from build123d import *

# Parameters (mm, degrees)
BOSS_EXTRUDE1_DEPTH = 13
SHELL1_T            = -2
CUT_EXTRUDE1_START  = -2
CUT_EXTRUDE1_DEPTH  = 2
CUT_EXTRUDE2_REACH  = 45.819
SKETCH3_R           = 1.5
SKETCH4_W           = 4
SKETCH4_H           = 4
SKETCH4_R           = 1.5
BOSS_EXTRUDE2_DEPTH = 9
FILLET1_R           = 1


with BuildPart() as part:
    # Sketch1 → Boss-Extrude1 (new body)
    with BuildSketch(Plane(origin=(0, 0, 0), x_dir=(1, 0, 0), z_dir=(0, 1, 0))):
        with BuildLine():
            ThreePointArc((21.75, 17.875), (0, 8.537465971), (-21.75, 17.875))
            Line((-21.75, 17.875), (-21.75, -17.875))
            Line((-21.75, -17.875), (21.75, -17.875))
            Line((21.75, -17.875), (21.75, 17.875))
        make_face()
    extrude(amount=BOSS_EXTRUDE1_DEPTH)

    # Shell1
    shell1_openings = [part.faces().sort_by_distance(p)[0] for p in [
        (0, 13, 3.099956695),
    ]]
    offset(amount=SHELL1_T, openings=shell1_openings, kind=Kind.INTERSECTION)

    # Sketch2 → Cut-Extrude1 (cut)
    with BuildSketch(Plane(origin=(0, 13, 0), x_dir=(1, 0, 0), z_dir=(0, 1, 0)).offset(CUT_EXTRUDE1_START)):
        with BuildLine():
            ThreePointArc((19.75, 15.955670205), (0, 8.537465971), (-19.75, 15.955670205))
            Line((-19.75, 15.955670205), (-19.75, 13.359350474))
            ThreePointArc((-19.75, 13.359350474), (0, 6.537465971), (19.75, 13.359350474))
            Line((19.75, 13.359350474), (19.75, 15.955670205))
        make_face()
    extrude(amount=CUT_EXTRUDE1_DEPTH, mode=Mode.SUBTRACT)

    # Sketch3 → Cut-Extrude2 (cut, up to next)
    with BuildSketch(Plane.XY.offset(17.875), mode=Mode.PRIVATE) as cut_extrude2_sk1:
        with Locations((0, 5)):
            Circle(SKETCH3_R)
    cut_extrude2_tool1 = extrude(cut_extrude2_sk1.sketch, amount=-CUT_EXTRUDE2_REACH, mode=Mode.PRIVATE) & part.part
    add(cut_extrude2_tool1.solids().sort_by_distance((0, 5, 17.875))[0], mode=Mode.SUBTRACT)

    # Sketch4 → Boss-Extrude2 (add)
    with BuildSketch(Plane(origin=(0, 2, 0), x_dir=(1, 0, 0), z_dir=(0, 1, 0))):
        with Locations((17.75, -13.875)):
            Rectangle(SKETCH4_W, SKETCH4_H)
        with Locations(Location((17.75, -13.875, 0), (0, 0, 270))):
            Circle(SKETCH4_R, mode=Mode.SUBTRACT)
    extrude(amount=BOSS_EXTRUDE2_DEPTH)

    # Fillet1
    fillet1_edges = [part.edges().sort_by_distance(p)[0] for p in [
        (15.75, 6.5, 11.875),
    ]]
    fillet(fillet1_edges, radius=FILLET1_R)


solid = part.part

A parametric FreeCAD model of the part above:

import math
import FreeCAD as App
import Part
import Sketcher


def edges_at(feature, points):
    """Names of the edges that pass closest to the given points."""
    edges = feature.Shape.Edges
    near = lambda p: min(range(len(edges)), key=lambda i: edges[i].distToShape(Part.Vertex(*p))[0])
    return sorted({f"Edge{near(p) + 1}" for p in points})


def faces_at(feature, points):
    """Names of the faces that lie closest to the given points."""
    faces = feature.Shape.Faces
    near = lambda p: min(range(len(faces)), key=lambda i: faces[i].distToShape(Part.Vertex(*p))[0])
    return sorted({f"Face{near(p) + 1}" for p in points})


def add_polygon(sketch, points):
    """Adds a closed chain of lines whose ends are joined by coincident constraints."""
    first, n = sketch.GeometryCount, len(points)
    for a, b in zip(points, points[1:] + points[:1]):
        sketch.addGeometry(Part.LineSegment(App.Vector(*a, 0), App.Vector(*b, 0)), False)
    for i in range(n):
        sketch.addConstraint(Sketcher.Constraint("Coincident", first + i, 2, first + (i + 1) % n, 1))

doc = App.newDocument("Part")
body = doc.addObject("PartDesign::Body", "Body")

# Sketch on XZ plane
sketch1 = body.newObject("Sketcher::SketchObject", "Sketch")
sketch1.AttachmentSupport = (doc.getObject("XZ_Plane"), [""])
sketch1.MapMode = "FlatFace"
sketch1.addGeometry(Part.ArcOfCircle(Part.Circle(App.Vector(0, -38.537466, 0), App.Vector(0, 0, 1), 30), math.radians(43.531152), math.radians(136.468848)), False)
sketch1.addGeometry(Part.LineSegment(App.Vector(-21.75, -17.875, 0), App.Vector(-21.75, 17.875, 0)), False)
sketch1.addGeometry(Part.LineSegment(App.Vector(-21.75, 17.875, 0), App.Vector(21.75, 17.875, 0)), False)
sketch1.addGeometry(Part.LineSegment(App.Vector(21.75, 17.875, 0), App.Vector(21.75, -17.875, 0)), False)
sketch1.addConstraint(Sketcher.Constraint("Coincident", 0, 2, 1, 1))
sketch1.addConstraint(Sketcher.Constraint("Coincident", 1, 2, 2, 1))
sketch1.addConstraint(Sketcher.Constraint("Coincident", 2, 2, 3, 1))
sketch1.addConstraint(Sketcher.Constraint("Coincident", 3, 2, 0, 1))
sketch1.addConstraint(Sketcher.Constraint("Vertical", 1))
sketch1.addConstraint(Sketcher.Constraint("Horizontal", 2))
sketch1.addConstraint(Sketcher.Constraint("Vertical", 3))
sketch1.addConstraint(Sketcher.Constraint("Symmetric", 0, 2, 2, 2, -1, 1))
sketch1.addConstraint(Sketcher.Constraint("PointOnObject", 0, 3, -2))
sketch1.addConstraint(Sketcher.Constraint("Radius", 0, 30.0))
sketch1.addConstraint(Sketcher.Constraint("DistanceX", 2, 1, 2, 2, 43.5))
sketch1.addConstraint(Sketcher.Constraint("DistanceY", 1, 1, 1, 2, 35.75))
pad1 = body.newObject("PartDesign::Pad", "Pad")
pad1.Profile = sketch1
pad1.Length = 13
pad1.Reversed = True
doc.recompute()

thickness = body.newObject("PartDesign::Thickness", "Thickness")
thickness.Base = (pad1, faces_at(pad1, [(0, 13, 0)]))
thickness.Value = 2
thickness.Reversed = True
thickness.Join = "Intersection"

# Sketch on XZ plane
sketch2 = body.newObject("Sketcher::SketchObject", "Sketch001")
sketch2.AttachmentSupport = (doc.getObject("XZ_Plane"), [""])
sketch2.MapMode = "FlatFace"
sketch2.AttachmentOffset = App.Placement(App.Vector(0, 0, -11), App.Rotation())
sketch2.addGeometry(Part.ArcOfCircle(Part.Circle(App.Vector(0, -38.537466, 0), App.Vector(0, 0, 1), 30), math.radians(48.827113), math.radians(131.172887)), False)
sketch2.addGeometry(Part.LineSegment(App.Vector(-19.75, -15.95567, 0), App.Vector(-19.75, -13.35935, 0)), False)
sketch2.addGeometry(Part.ArcOfCircle(Part.Circle(App.Vector(0, -38.537466, 0), App.Vector(0, 0, 1), 32), math.radians(51.88896), math.radians(128.11104)), False)
sketch2.addGeometry(Part.LineSegment(App.Vector(19.75, -13.35935, 0), App.Vector(19.75, -15.95567, 0)), False)
sketch2.addConstraint(Sketcher.Constraint("Coincident", 0, 2, 1, 1))
sketch2.addConstraint(Sketcher.Constraint("Coincident", 1, 2, 2, 2))
sketch2.addConstraint(Sketcher.Constraint("Coincident", 2, 1, 3, 1))
sketch2.addConstraint(Sketcher.Constraint("Coincident", 3, 2, 0, 1))
sketch2.addConstraint(Sketcher.Constraint("Vertical", 1))
sketch2.addConstraint(Sketcher.Constraint("Vertical", 3))
sketch2.addConstraint(Sketcher.Constraint("Coincident", 2, 3, 0, 3))
sketch2.addConstraint(Sketcher.Constraint("Symmetric", 1, 2, 2, 1, -2))
sketch2.addConstraint(Sketcher.Constraint("Radius", 0, 30.0))
sketch2.addConstraint(Sketcher.Constraint("Radius", 2, 32.0))
sketch2.addConstraint(Sketcher.Constraint("DistanceX", 1, 2, 2, 1, 39.5))
sketch2.addConstraint(Sketcher.Constraint("DistanceY", 0, 2, -1, 1, 15.95567))
pocket1 = body.newObject("PartDesign::Pocket", "Pocket")
pocket1.Profile = sketch2
pocket1.Length = 2

# Sketch on XY plane
sketch3 = body.newObject("Sketcher::SketchObject", "Sketch002")
sketch3.AttachmentSupport = (doc.getObject("XY_Plane"), [""])
sketch3.MapMode = "FlatFace"
sketch3.AttachmentOffset = App.Placement(App.Vector(0, 0, 17.875), App.Rotation())
sketch3.addGeometry(Part.Circle(App.Vector(0, 5, 0), App.Vector(0, 0, 1), 1.5), False)
sketch3.addConstraint(Sketcher.Constraint("PointOnObject", 0, 3, -2))
sketch3.addConstraint(Sketcher.Constraint("Diameter", 0, 3.0))
sketch3.addConstraint(Sketcher.Constraint("DistanceY", -1, 1, 0, 3, 5.0))
pocket2 = body.newObject("PartDesign::Pocket", "Pocket001")
pocket2.Profile = sketch3
pocket2.Type = "UpToFirst"

# Sketch on XZ plane
sketch4 = body.newObject("Sketcher::SketchObject", "Sketch003")
sketch4.AttachmentSupport = (doc.getObject("XZ_Plane"), [""])
sketch4.MapMode = "FlatFace"
sketch4.AttachmentOffset = App.Placement(App.Vector(0, 0, -2), App.Rotation())
add_polygon(sketch4, [(15.75, 11.875), (15.75, 15.875), (19.75, 15.875), (19.75, 11.875)])  # lines 0-3
sketch4.addGeometry(Part.Circle(App.Vector(17.75, 13.875, 0), App.Vector(0, 0, 1), 1.5), False)  # 4
sketch4.addConstraint(Sketcher.Constraint("Vertical", 0))
sketch4.addConstraint(Sketcher.Constraint("Horizontal", 1))
sketch4.addConstraint(Sketcher.Constraint("Vertical", 2))
sketch4.addConstraint(Sketcher.Constraint("Horizontal", 3))
sketch4.addConstraint(Sketcher.Constraint("Equal", 3, 0))
sketch4.addConstraint(Sketcher.Constraint("Diameter", 4, 3.0))
sketch4.addConstraint(Sketcher.Constraint("DistanceX", 1, 1, 1, 2, 4.0))
sketch4.addConstraint(Sketcher.Constraint("DistanceX", 0, 2, 4, 3, 2.0))
sketch4.addConstraint(Sketcher.Constraint("DistanceY", 4, 3, 0, 2, 2.0))
sketch4.addConstraint(Sketcher.Constraint("DistanceX", -1, 1, 4, 3, 17.75))
sketch4.addConstraint(Sketcher.Constraint("DistanceY", -1, 1, 4, 3, 13.875))
pad2 = body.newObject("PartDesign::Pad", "Pad001")
pad2.Profile = sketch4
pad2.Length = 9
pad2.Reversed = True
doc.recompute()

fillet = body.newObject("PartDesign::Fillet", "Fillet")
fillet.Base = (pad2, edges_at(pad2, [(15.75, 6.5, 11.875)]))
fillet.Radius = 1

doc.recompute()
